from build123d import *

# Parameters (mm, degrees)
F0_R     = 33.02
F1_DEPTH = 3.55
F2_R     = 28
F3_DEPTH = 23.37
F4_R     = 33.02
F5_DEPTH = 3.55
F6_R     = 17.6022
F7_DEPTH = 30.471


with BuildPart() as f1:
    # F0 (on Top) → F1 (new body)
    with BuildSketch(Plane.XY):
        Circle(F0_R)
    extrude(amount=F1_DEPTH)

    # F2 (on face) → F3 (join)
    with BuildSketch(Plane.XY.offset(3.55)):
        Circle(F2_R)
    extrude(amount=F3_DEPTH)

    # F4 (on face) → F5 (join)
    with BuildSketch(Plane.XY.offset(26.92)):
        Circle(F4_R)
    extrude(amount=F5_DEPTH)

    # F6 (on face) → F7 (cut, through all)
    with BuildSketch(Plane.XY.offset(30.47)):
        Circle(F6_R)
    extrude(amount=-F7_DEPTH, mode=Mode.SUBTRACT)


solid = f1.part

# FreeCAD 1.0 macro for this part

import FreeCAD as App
import Part
import Sketcher
from FreeCAD import Vector
Q = App.Units.Quantity

doc = App.newDocument("Part")
params = doc.addObject("Spreadsheet::Sheet", "Params")
for row, (alias, value) in enumerate([
    ("sketch1_diameter", "2.6 in"),
    ("pad1_length", "3.55 mm"),
    ("pad2_length", "23.37 mm"),
    ("sketch3_diameter", "2.6 in"),
    ("pad3_length", "3.55 mm"),
    ("sketch4_diameter", "1.386 in"),
], start=1):
    params.set(f"A{row}", alias)
    params.set(f"B{row}", "=" + value)
    params.setAlias(f"B{row}", alias)

body = doc.addObject("PartDesign::Body", "Body")

# Sketch on XY plane
sketch1 = body.newObject("Sketcher::SketchObject", "Sketch")
sketch1.AttachmentSupport = (doc.getObject("XY_Plane"), [""])
sketch1.MapMode = "FlatFace"
sketch1.addGeometry(Part.Circle(Vector(0, 0, 0), Vector(0, 0, 1), 33), False)
sketch1.addConstraint([
    Sketcher.Constraint("Coincident", 0, 3, -1, 1),
    Sketcher.Constraint("Diameter", 0, Q("2.6 in")),
])
sketch1.setExpression("Constraints[1]", "Params.sketch1_diameter")
pad1 = body.newObject("PartDesign::Pad", "Pad")
pad1.Profile = sketch1
pad1.setExpression("Length", "Params.pad1_length")

# Sketch on XY plane
sketch2 = body.newObject("Sketcher::SketchObject", "Sketch001")
sketch2.AttachmentSupport = (doc.getObject("XY_Plane"), [""])
sketch2.MapMode = "FlatFace"
sketch2.AttachmentOffset = App.Placement(Vector(0, 0, 3.55), App.Rotation())
sketch2.addGeometry(Part.Circle(Vector(0, 0, 0), Vector(0, 0, 1), 28), False)
sketch2.addConstraint([
    Sketcher.Constraint("Coincident", 0, 3, -1, 1),
    Sketcher.Constraint("Diameter", 0, Q("56 mm")),
])
pad2 = body.newObject("PartDesign::Pad", "Pad001")
pad2.Profile = sketch2
pad2.setExpression("Length", "Params.pad2_length")

# Sketch on XY plane
sketch3 = body.newObject("Sketcher::SketchObject", "Sketch002")
sketch3.AttachmentSupport = (doc.getObject("XY_Plane"), [""])
sketch3.MapMode = "FlatFace"
sketch3.AttachmentOffset = App.Placement(Vector(0, 0, 26.92), App.Rotation())
sketch3.addGeometry(Part.Circle(Vector(0, 0, 0), Vector(0, 0, 1), 33), False)
sketch3.addConstraint([
    Sketcher.Constraint("Coincident", 0, 3, -1, 1),
    Sketcher.Constraint("Diameter", 0, Q("2.6 in")),
])
sketch3.setExpression("Constraints[1]", "Params.sketch3_diameter")
pad3 = body.newObject("PartDesign::Pad", "Pad002")
pad3.Profile = sketch3
pad3.setExpression("Length", "Params.pad3_length")

# Sketch on XY plane
sketch4 = body.newObject("Sketcher::SketchObject", "Sketch003")
sketch4.AttachmentSupport = (doc.getObject("XY_Plane"), [""])
sketch4.MapMode = "FlatFace"
sketch4.AttachmentOffset = App.Placement(Vector(0, 0, 30.47), App.Rotation())
sketch4.addGeometry(Part.Circle(Vector(0, 0, 0), Vector(0, 0, 1), 18), False)
sketch4.addConstraint([
    Sketcher.Constraint("Coincident", 0, 3, -1, 1),
    Sketcher.Constraint("Diameter", 0, Q("1.386 in")),
])
sketch4.setExpression("Constraints[1]", "Params.sketch4_diameter")
pocket1 = body.newObject("PartDesign::Pocket", "Pocket")
pocket1.Profile = sketch4
pocket1.Type = "ThroughAll"

doc.recompute()
